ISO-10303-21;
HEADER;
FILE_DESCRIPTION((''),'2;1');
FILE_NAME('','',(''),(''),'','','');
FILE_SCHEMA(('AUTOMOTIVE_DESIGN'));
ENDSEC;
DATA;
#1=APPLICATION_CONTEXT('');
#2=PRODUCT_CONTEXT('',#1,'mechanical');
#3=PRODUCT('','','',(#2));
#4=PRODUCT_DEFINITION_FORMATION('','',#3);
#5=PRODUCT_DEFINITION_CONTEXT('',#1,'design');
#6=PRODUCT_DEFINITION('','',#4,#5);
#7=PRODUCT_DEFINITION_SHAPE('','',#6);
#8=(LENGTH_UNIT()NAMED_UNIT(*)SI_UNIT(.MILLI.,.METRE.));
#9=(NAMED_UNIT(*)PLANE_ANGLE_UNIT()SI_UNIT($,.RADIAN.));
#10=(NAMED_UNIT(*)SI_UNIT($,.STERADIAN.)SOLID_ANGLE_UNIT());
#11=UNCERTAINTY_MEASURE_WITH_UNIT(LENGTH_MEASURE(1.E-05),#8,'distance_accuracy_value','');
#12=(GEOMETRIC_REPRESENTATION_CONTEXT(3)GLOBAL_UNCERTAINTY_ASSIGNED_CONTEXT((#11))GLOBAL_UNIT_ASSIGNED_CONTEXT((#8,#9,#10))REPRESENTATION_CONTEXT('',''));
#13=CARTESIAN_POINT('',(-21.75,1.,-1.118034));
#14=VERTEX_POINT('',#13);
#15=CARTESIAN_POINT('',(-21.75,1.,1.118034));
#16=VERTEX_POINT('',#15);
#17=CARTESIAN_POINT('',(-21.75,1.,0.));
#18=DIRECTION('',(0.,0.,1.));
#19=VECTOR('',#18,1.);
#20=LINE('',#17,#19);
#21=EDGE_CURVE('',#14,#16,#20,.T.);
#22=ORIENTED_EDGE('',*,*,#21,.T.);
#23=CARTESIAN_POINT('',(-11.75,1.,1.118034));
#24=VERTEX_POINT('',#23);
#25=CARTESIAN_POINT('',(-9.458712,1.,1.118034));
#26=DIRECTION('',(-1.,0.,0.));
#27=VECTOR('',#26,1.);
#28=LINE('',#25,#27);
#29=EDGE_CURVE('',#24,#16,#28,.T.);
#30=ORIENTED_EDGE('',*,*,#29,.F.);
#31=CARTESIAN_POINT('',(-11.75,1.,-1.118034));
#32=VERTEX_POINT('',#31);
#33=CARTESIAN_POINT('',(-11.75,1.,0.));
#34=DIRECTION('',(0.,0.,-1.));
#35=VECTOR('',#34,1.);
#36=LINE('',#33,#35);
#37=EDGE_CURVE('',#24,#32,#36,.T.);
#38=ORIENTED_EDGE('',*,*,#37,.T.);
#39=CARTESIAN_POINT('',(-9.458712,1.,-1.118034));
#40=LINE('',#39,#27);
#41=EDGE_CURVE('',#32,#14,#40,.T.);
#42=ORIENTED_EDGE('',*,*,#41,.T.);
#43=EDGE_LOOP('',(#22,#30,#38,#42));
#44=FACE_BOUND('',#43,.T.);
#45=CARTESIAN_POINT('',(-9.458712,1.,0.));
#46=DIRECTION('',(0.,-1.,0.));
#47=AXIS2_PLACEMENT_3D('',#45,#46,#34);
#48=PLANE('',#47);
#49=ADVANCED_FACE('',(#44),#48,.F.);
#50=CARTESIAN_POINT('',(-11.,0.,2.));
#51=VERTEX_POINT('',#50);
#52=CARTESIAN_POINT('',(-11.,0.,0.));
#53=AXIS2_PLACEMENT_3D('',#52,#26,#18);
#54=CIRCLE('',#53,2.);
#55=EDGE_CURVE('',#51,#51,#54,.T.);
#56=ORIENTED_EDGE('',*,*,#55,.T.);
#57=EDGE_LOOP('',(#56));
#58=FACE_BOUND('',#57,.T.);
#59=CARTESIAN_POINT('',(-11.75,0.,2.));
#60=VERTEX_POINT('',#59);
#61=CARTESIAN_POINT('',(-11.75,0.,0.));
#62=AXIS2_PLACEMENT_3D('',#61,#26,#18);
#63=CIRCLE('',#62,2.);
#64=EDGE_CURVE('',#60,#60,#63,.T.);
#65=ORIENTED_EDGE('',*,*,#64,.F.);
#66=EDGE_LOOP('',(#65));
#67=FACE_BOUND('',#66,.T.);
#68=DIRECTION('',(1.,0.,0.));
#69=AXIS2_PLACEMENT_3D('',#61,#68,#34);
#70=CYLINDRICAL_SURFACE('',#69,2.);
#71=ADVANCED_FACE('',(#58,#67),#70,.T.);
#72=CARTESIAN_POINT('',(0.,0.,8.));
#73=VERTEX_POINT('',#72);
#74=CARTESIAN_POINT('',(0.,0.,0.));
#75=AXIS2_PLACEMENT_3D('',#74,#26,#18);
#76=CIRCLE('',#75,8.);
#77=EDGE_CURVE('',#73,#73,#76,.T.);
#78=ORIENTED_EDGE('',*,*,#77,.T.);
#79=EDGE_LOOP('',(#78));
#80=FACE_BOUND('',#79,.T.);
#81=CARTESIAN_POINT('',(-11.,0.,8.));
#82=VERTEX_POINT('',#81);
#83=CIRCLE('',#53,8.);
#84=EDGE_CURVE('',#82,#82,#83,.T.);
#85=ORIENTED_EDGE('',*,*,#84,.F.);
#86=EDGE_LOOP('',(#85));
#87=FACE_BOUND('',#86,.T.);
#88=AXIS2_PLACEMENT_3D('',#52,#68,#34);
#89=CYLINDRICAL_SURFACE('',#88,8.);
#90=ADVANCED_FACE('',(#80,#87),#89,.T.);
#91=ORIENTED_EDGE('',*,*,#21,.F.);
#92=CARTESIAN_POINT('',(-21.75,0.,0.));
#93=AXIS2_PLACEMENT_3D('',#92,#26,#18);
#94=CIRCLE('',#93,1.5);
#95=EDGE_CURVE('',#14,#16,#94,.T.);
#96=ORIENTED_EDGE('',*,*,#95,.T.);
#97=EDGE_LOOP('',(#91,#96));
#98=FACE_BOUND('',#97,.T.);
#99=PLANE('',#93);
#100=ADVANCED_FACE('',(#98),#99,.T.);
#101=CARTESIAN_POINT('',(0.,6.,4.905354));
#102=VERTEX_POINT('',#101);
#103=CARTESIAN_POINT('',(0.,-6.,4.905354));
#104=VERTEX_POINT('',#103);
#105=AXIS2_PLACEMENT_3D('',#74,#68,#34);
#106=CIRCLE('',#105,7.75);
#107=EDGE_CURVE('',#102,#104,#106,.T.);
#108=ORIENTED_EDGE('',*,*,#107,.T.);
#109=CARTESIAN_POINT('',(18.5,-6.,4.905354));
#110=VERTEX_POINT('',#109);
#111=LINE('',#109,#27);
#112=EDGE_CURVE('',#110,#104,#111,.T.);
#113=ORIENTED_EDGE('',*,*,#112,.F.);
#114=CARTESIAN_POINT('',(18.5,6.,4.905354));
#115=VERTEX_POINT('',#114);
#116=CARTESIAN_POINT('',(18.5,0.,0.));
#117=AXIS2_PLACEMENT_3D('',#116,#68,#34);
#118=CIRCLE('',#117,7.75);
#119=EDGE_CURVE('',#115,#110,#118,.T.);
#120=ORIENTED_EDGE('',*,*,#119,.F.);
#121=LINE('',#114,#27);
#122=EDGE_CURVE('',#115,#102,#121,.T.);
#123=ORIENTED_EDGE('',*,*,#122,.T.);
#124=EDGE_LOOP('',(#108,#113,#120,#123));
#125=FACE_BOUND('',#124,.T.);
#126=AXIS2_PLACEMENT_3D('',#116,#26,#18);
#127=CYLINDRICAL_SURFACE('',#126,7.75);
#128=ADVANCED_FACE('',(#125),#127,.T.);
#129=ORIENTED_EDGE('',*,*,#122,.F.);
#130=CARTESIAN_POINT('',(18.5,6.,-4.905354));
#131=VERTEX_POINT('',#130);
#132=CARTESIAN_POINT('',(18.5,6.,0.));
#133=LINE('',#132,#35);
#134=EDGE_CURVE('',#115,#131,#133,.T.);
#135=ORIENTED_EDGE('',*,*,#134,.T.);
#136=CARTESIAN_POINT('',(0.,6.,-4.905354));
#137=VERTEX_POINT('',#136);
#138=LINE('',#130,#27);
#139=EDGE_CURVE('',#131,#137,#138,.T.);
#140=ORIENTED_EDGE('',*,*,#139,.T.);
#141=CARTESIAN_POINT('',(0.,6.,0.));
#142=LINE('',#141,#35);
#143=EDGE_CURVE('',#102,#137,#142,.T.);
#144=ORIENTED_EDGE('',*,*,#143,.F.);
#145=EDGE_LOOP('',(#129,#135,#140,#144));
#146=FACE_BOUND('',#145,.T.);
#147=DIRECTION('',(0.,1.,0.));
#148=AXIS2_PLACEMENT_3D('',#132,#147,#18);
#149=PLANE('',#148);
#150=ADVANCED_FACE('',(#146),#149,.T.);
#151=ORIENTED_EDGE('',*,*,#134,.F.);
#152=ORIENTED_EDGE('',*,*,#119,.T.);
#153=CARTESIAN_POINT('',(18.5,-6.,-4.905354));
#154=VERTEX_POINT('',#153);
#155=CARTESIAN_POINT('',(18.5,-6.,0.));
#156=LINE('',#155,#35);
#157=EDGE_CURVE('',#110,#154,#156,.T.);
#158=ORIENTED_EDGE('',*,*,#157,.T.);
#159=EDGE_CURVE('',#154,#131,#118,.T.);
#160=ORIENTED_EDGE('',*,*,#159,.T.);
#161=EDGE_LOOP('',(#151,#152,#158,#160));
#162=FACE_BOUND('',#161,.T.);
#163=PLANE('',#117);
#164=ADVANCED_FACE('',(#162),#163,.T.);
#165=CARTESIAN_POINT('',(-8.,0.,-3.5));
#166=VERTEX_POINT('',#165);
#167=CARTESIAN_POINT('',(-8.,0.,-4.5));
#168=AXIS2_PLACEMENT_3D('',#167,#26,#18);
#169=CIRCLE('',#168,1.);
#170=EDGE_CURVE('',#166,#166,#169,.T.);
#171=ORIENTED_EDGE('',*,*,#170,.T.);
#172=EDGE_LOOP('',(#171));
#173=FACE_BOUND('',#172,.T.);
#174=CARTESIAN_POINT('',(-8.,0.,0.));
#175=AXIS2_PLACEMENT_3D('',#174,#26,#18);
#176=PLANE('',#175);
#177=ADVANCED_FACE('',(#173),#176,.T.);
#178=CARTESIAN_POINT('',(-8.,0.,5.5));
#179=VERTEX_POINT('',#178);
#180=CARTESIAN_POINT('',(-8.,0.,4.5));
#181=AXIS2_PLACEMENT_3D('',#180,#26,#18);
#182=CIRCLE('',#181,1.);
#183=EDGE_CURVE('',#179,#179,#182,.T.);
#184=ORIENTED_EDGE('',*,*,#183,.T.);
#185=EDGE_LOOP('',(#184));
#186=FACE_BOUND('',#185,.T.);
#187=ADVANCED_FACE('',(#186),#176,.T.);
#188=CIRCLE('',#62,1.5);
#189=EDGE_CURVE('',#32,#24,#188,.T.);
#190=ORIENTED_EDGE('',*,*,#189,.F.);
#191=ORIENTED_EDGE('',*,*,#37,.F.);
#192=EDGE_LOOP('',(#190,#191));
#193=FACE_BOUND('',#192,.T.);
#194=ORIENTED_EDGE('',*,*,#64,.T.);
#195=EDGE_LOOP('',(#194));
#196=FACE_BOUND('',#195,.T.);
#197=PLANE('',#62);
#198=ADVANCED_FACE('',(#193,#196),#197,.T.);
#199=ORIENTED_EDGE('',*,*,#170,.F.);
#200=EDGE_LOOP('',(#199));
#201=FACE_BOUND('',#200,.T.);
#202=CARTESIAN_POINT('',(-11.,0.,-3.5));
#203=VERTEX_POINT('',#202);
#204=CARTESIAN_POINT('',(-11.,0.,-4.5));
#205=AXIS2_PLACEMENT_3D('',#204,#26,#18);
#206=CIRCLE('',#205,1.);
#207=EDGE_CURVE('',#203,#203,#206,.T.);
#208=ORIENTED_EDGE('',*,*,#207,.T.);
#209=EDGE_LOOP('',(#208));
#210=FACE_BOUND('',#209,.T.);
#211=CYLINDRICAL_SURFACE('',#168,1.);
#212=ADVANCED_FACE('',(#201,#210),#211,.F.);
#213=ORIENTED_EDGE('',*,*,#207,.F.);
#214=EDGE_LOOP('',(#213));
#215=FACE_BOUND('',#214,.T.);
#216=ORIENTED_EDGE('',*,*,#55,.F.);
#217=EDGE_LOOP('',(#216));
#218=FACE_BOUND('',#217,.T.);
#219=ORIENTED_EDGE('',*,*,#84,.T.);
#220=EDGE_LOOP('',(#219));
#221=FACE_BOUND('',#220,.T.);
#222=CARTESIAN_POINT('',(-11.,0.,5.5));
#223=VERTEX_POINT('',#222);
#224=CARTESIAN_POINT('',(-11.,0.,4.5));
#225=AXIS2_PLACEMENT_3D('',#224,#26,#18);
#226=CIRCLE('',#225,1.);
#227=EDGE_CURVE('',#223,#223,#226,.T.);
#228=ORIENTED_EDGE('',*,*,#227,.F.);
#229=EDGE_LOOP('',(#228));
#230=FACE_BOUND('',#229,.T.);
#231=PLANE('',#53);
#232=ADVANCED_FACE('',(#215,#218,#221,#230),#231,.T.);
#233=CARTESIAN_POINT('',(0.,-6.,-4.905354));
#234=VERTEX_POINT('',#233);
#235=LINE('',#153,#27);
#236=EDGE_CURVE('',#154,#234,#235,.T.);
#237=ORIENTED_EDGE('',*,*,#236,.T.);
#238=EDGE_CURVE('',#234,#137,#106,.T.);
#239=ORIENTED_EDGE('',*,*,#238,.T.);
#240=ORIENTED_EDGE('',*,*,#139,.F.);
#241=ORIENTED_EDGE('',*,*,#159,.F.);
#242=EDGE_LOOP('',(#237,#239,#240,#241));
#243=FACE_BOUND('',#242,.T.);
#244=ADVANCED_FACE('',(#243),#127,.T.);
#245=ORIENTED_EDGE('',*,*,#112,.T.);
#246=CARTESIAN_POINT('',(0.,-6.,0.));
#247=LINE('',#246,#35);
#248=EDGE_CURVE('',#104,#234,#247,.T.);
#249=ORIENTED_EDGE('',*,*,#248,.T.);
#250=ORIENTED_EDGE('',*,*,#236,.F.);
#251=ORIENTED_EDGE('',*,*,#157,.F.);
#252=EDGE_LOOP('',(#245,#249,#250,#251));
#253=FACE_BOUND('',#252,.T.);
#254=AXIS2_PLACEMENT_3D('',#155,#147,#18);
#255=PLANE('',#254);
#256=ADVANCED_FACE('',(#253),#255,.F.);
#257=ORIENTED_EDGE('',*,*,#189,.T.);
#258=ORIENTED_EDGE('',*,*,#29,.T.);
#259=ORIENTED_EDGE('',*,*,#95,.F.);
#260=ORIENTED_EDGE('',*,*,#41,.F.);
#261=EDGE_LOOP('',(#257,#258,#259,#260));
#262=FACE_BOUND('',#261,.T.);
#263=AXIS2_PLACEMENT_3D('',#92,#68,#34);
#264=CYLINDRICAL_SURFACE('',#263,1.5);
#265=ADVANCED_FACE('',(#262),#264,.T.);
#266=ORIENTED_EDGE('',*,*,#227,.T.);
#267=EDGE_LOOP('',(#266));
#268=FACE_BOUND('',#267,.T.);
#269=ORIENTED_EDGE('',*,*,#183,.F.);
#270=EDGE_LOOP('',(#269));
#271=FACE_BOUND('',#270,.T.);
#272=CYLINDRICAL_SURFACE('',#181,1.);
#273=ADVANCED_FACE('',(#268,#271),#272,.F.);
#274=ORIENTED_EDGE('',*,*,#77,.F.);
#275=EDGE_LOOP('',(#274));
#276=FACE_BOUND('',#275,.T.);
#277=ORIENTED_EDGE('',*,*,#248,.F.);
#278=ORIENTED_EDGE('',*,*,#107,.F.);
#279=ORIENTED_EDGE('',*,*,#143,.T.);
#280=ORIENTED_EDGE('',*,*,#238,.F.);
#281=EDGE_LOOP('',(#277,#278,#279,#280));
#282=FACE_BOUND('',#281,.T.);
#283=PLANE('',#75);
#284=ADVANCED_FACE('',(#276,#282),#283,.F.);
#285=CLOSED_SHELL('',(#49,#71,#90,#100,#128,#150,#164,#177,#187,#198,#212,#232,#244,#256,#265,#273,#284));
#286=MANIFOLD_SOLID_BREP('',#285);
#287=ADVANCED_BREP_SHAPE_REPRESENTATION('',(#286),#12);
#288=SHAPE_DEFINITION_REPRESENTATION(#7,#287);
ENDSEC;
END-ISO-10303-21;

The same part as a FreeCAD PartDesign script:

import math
import FreeCAD as App
import Part
import Sketcher

V = App.Vector


def add_polygon(sketch, points):
    """Adds a closed chain of lines whose ends are joined by coincident constraints."""
    first, n = sketch.GeometryCount, len(points)
    for a, b in zip(points, points[1:] + points[:1]):
        sketch.addGeometry(Part.LineSegment(App.Vector(*a, 0), App.Vector(*b, 0)), False)
    for i in range(n):
        sketch.addConstraint(Sketcher.Constraint("Coincident", first + i, 2, first + (i + 1) % n, 1))

doc = App.newDocument("Part")
body = doc.addObject("PartDesign::Body", "Body")

# Sketch on YZ plane
sketch1 = body.newObject("Sketcher::SketchObject", "Sketch")
sketch1.AttachmentSupport = (doc.getObject("YZ_Plane"), [""])
sketch1.MapMode = "FlatFace"
sketch1.addGeometry(Part.ArcOfCircle(Part.Circle(V(0, 0, 0), V(0, 0, 1), 8), math.radians(39), math.radians(141)), False)
sketch1.addGeometry(Part.LineSegment(V(-6, 5, 0), V(-6, -5, 0)), False)
sketch1.addGeometry(Part.ArcOfCircle(Part.Circle(V(0, 0, 0), V(0, 0, 1), 8), math.radians(-141), math.radians(-90)), False)
sketch1.addGeometry(Part.ArcOfCircle(Part.Circle(V(0, 0, 0), V(0, 0, 1), 8), math.radians(-90), math.radians(-39)), False)
sketch1.addGeometry(Part.LineSegment(V(6, -5, 0), V(6, 5, 0)), False)
sketch1.addConstraint(Sketcher.Constraint("Coincident", 0, 2, 1, 1))
sketch1.addConstraint(Sketcher.Constraint("Coincident", 1, 2, 2, 1))
sketch1.addConstraint(Sketcher.Constraint("Tangent", 2, 2, 3, 1))
sketch1.addConstraint(Sketcher.Constraint("Coincident", 3, 2, 4, 1))
sketch1.addConstraint(Sketcher.Constraint("Coincident", 4, 2, 0, 1))
sketch1.addConstraint(Sketcher.Constraint("Vertical", 1))
sketch1.addConstraint(Sketcher.Constraint("Vertical", 4))
sketch1.addConstraint(Sketcher.Constraint("Coincident", 0, 3, -1, 1))
sketch1.addConstraint(Sketcher.Constraint("Coincident", 2, 3, -1, 1))
sketch1.addConstraint(Sketcher.Constraint("Equal", 0, 2))
sketch1.addConstraint(Sketcher.Constraint("Equal", 2, 3))
sketch1.addConstraint(Sketcher.Constraint("PointOnObject", 2, 2, -2))
sketch1.addConstraint(Sketcher.Constraint("Horizontal", 1, 2, 3, 2))
sketch1.addConstraint(Sketcher.Constraint("Radius", 0, 7.75))
sketch1.addConstraint(Sketcher.Constraint("DistanceX", 0, 2, -1, 1, 6.0))
pad1 = body.newObject("PartDesign::Pad", "Pad")
pad1.Profile = sketch1
pad1.Length = 18.5

# Sketch on YZ plane
sketch2 = body.newObject("Sketcher::SketchObject", "Sketch001")
sketch2.AttachmentSupport = (doc.getObject("YZ_Plane"), [""])
sketch2.MapMode = "FlatFace"
sketch2.addGeometry(Part.Circle(V(0, 0, 0), V(0, 0, 1), 8), False)
sketch2.addConstraint(Sketcher.Constraint("Coincident", 0, 3, -1, 1))
sketch2.addConstraint(Sketcher.Constraint("Diameter", 0, 16.0))
pad2 = body.newObject("PartDesign::Pad", "Pad001")
pad2.Profile = sketch2
pad2.Length = 11
pad2.Reversed = True

# Sketch on YZ plane
sketch3 = body.newObject("Sketcher::SketchObject", "Sketch002")
sketch3.AttachmentSupport = (doc.getObject("YZ_Plane"), [""])
sketch3.MapMode = "FlatFace"
sketch3.AttachmentOffset = App.Placement(V(0, 0, -11), App.Rotation())
sketch3.addGeometry(Part.Circle(V(0, 0, 0), V(0, 0, 1), 2), False)
sketch3.addConstraint(Sketcher.Constraint("Coincident", 0, 3, -1, 1))
sketch3.addConstraint(Sketcher.Constraint("Diameter", 0, 4.0))
pad3 = body.newObject("PartDesign::Pad", "Pad002")
pad3.Profile = sketch3
pad3.Length = 0.75
pad3.Reversed = True

# Sketch on YZ plane
sketch4 = body.newObject("Sketcher::SketchObject", "Sketch003")
sketch4.AttachmentSupport = (doc.getObject("YZ_Plane"), [""])
sketch4.MapMode = "FlatFace"
sketch4.AttachmentOffset = App.Placement(V(0, 0, -11.75), App.Rotation())
sketch4.addGeometry(Part.Circle(V(0, 0, 0), V(0, 0, 1), 1.5), False)
sketch4.addConstraint(Sketcher.Constraint("Coincident", 0, 3, -1, 1))
sketch4.addConstraint(Sketcher.Constraint("Diameter", 0, 3.0))
pad4 = body.newObject("PartDesign::Pad", "Pad003")
pad4.Profile = sketch4
pad4.Length = 10
pad4.Reversed = True

# Sketch on YZ plane
sketch5 = body.newObject("Sketcher::SketchObject", "Sketch004")
sketch5.AttachmentSupport = (doc.getObject("YZ_Plane"), [""])
sketch5.MapMode = "FlatFace"
sketch5.AttachmentOffset = App.Placement(V(0, 0, -21.75), App.Rotation())
add_polygon(sketch5, [(1, -37), (1, 37), (72, 37), (72, -37)])  # lines 0-3
sketch5.addConstraint(Sketcher.Constraint("Vertical", 0))
sketch5.addConstraint(Sketcher.Constraint("Horizontal", 1))
sketch5.addConstraint(Sketcher.Constraint("Vertical", 2))
sketch5.addConstraint(Sketcher.Constraint("Horizontal", 3))
sketch5.addConstraint(Sketcher.Constraint("DistanceX", -1, 1, 0, 2, 1.0))
sketch5.addConstraint(Sketcher.Constraint("DistanceX", 1, 1, 1, 2, 71.246626))
sketch5.addConstraint(Sketcher.Constraint("DistanceY", 0, 1, 0, 2, 73.482694))
sketch5.addConstraint(Sketcher.Constraint("DistanceY", -1, 1, 0, 2, 36.741347))
pocket1 = body.newObject("PartDesign::Pocket", "Pocket")
pocket1.Profile = sketch5
pocket1.Length = 10
pocket1.Reversed = True

# Sketch on YZ plane
sketch6 = body.newObject("Sketcher::SketchObject", "Sketch005")
sketch6.AttachmentSupport = (doc.getObject("YZ_Plane"), [""])
sketch6.MapMode = "FlatFace"
sketch6.AttachmentOffset = App.Placement(V(0, 0, -11), App.Rotation())
sketch6.addGeometry(Part.ArcOfCircle(Part.Circle(V(0, -4.5, 0), V(0, 0, 1), 1), math.radians(90), math.radians(174)), False)
sketch6.addGeometry(Part.ArcOfCircle(Part.Circle(V(0, -4.5, 0), V(0, 0, 1), 1), math.radians(6), math.radians(90)), False)
sketch6.addGeometry(Part.ArcOfCircle(Part.Circle(V(0, -4.5, 0), V(0, 0, 1), 1), math.radians(-90), math.radians(6)), False)
sketch6.addGeometry(Part.ArcOfCircle(Part.Circle(V(0, -4.5, 0), V(0, 0, 1), 1), math.radians(174), math.radians(270)), False)
sketch6.addGeometry(Part.ArcOfCircle(Part.Circle(V(0, 4.5, 0), V(0, 0, 1), 1), math.radians(-90), math.radians(-6)), False)
sketch6.addGeometry(Part.ArcOfCircle(Part.Circle(V(0, 4.5, 0), V(0, 0, 1), 1), math.radians(-174), math.radians(-90)), False)
sketch6.addGeometry(Part.ArcOfCircle(Part.Circle(V(0, 4.5, 0), V(0, 0, 1), 1), math.radians(90), math.radians(186)), False)
sketch6.addGeometry(Part.ArcOfCircle(Part.Circle(V(0, 4.5, 0), V(0, 0, 1), 1), math.radians(-6), math.radians(90)), False)
sketch6.addConstraint(Sketcher.Constraint("Tangent", 0, 1, 1, 2))
sketch6.addConstraint(Sketcher.Constraint("Tangent", 1, 1, 2, 2))
sketch6.addConstraint(Sketcher.Constraint("Tangent", 2, 1, 3, 2))
sketch6.addConstraint(Sketcher.Constraint("Tangent", 3, 1, 0, 2))
sketch6.addConstraint(Sketcher.Constraint("Tangent", 4, 1, 5, 2))
sketch6.addConstraint(Sketcher.Constraint("Tangent", 5, 1, 6, 2))
sketch6.addConstraint(Sketcher.Constraint("Tangent", 6, 1, 7, 2))
sketch6.addConstraint(Sketcher.Constraint("Tangent", 7, 1, 4, 2))
sketch6.addConstraint(Sketcher.Constraint("Equal", 0, 1))
sketch6.addConstraint(Sketcher.Constraint("Equal", 3, 4))
sketch6.addConstraint(Sketcher.Constraint("Equal", 4, 5))
sketch6.addConstraint(Sketcher.Constraint("Symmetric", 0, 3, 4, 3, -1, 1))
sketch6.addConstraint(Sketcher.Constraint("Symmetric", 1, 1, 3, 1, -2))
sketch6.addConstraint(Sketcher.Constraint("PointOnObject", 0, 1, -2))
sketch6.addConstraint(Sketcher.Constraint("PointOnObject", 2, 1, -2))
sketch6.addConstraint(Sketcher.Constraint("PointOnObject", 4, 1, -2))
sketch6.addConstraint(Sketcher.Constraint("PointOnObject", 6, 1, -2))
sketch6.addConstraint(Sketcher.Constraint("Horizontal", 5, 1, 7, 1))
sketch6.addConstraint(Sketcher.Constraint("Vertical", 3, 1, 5, 1))
sketch6.addConstraint(Sketcher.Constraint("Radius", 0, 1.0))
sketch6.addConstraint(Sketcher.Constraint("DistanceY", 0, 3, 4, 3, 9.0))
sketch6.addConstraint(Sketcher.Constraint("DistanceY", 1, 1, -1, 1, 4.388889))
pocket2 = body.newObject("PartDesign::Pocket", "Pocket001")
pocket2.Profile = sketch6
pocket2.Length = 3
pocket2.Reversed = True

doc.recompute()
